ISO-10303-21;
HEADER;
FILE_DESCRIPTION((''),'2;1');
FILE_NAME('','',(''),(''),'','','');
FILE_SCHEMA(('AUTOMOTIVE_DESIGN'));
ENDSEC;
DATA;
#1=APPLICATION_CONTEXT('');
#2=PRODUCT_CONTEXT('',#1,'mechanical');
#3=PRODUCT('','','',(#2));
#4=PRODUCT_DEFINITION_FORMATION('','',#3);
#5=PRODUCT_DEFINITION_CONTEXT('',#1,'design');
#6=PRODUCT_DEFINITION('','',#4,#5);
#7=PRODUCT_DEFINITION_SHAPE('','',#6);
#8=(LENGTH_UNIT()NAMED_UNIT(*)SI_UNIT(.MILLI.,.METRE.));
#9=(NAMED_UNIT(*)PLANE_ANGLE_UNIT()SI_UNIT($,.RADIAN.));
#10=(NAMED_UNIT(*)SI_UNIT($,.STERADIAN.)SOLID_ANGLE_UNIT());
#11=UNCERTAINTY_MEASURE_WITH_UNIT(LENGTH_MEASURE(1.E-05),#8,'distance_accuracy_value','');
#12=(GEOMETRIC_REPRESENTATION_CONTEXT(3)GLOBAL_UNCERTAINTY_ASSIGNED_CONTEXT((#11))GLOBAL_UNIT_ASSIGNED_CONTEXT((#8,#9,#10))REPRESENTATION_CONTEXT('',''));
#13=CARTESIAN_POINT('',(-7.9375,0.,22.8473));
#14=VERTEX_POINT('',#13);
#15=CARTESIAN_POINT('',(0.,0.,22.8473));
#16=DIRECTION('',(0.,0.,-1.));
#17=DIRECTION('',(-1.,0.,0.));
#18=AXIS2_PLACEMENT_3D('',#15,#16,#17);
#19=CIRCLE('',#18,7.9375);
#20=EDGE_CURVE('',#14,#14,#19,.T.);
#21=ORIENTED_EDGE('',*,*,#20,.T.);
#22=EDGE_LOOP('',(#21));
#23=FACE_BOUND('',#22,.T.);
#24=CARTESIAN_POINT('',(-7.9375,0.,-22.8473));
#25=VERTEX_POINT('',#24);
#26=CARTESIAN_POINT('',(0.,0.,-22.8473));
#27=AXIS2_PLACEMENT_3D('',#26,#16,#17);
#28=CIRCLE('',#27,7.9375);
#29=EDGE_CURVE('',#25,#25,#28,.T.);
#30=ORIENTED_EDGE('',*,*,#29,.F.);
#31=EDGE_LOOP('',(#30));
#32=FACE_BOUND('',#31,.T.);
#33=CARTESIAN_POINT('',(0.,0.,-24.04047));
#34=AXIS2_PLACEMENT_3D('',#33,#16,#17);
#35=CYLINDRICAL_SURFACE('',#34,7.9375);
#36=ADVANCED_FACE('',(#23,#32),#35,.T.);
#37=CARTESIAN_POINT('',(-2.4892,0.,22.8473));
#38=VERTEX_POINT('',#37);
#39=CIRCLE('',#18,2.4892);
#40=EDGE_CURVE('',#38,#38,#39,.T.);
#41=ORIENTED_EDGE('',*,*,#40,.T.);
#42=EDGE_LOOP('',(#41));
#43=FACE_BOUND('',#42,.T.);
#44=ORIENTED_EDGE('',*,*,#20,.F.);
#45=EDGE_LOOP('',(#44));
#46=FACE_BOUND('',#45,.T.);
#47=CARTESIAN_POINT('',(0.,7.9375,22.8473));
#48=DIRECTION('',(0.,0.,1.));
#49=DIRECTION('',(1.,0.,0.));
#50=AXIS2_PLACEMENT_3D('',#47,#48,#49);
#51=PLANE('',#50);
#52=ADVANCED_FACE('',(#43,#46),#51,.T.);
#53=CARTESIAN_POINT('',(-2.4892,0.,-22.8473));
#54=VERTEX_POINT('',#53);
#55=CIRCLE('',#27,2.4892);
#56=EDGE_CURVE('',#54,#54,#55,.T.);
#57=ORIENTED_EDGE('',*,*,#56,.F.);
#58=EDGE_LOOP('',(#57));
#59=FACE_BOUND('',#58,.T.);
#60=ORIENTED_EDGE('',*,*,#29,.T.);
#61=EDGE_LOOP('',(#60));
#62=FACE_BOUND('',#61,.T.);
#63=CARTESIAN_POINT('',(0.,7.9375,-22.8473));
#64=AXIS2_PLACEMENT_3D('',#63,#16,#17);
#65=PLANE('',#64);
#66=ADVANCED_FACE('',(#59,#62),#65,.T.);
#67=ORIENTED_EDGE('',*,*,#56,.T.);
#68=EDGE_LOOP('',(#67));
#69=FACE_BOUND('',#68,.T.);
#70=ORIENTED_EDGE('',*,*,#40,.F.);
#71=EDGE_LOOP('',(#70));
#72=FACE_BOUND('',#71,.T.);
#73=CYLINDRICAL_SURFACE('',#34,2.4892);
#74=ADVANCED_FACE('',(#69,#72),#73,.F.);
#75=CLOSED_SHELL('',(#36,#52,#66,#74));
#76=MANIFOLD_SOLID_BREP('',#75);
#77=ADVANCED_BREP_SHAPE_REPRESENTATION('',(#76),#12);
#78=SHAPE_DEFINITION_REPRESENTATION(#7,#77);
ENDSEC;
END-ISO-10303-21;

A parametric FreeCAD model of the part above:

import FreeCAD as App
import Part
import Sketcher
from FreeCAD import Vector
Q = App.Units.Quantity


def add_polygon(sketch, points):
    """Adds a closed chain of lines whose ends are joined by coincident constraints."""
    first, n = sketch.GeometryCount, len(points)
    for a, b in zip(points, points[1:] + points[:1]):
        sketch.addGeometry(Part.LineSegment(App.Vector(*a, 0), App.Vector(*b, 0)), False)
    for i in range(n):
        sketch.addConstraint(Sketcher.Constraint("Coincident", first + i, 2, first + (i + 1) % n, 1))

doc = App.newDocument("Part")
body = doc.addObject("PartDesign::Body", "Body")

# Sketch on YZ plane
sketch1 = doc.addObject("Sketcher::SketchObject", "Sketch")
body.addObject(sketch1)
sketch1.AttachmentSupport = (doc.YZ_Plane, [""])
sketch1.MapMode = "FlatFace"
add_polygon(sketch1, [(8, 23), (2, 23), (2, -23), (8, -23)])  # lines 0-3
sketch1.addConstraint([
    Sketcher.Constraint("Horizontal", 0),
    Sketcher.Constraint("Vertical", 1),
    Sketcher.Constraint("Horizontal", 2),
    Sketcher.Constraint("Vertical", 3),
    Sketcher.Constraint("DistanceY", 1, 2, 1, 1, Q("1.799 in")),
    Sketcher.Constraint("DistanceX", 0, 2, 0, 1, Q("0.2145 in")),
    Sketcher.Constraint("DistanceX", -1, 1, 0, 2, Q("0.098 in")),
    Sketcher.Constraint("DistanceY", -1, 1, 0, 2, Q("0.8995 in")),
])
revolution = doc.addObject("PartDesign::Revolution", "Revolution")
body.addObject(revolution)
revolution.Profile = sketch1
revolution.ReferenceAxis = (sketch1, ["V_Axis"])
revolution.Angle = 360

doc.recompute()
